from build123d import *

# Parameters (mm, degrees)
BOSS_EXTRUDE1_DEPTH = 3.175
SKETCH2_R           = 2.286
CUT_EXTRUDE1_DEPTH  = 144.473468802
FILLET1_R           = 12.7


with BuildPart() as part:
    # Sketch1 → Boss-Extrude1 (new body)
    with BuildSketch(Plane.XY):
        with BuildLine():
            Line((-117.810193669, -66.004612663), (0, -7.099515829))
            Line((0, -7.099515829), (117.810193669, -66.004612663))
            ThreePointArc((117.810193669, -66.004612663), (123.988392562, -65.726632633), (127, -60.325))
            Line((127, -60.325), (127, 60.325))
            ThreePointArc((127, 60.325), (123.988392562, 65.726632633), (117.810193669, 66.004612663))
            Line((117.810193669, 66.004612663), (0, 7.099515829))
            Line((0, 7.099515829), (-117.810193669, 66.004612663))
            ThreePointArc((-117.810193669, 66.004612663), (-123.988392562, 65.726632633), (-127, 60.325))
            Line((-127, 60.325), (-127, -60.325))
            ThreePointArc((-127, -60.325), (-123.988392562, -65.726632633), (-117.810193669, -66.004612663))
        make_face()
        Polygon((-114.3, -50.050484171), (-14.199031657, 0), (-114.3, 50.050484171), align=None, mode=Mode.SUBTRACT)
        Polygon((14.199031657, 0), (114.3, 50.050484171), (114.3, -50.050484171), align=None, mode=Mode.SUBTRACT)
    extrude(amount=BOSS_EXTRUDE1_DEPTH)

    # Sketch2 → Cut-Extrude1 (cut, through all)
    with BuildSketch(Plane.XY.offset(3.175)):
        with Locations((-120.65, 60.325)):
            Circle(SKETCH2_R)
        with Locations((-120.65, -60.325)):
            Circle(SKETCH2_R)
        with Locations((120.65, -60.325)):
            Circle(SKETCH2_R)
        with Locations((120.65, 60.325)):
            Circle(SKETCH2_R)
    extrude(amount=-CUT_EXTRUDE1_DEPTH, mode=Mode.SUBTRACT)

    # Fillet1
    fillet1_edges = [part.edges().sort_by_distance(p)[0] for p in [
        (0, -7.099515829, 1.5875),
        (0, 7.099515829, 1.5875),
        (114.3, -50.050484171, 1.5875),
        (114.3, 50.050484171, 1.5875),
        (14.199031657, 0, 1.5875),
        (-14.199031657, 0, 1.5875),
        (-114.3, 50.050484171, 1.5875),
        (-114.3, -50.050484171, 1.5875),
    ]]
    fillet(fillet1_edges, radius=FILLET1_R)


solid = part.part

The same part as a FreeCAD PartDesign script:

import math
import FreeCAD as App
import Part
import Sketcher

V = App.Vector
Q = App.Units.Quantity


def edges_at(feature, points):
    """Names of the edges that pass closest to the given points."""
    edges = feature.Shape.Edges
    near = lambda p: min(range(len(edges)), key=lambda i: edges[i].distToShape(Part.Vertex(*p))[0])
    return sorted({f"Edge{near(p) + 1}" for p in points})


def add_polygon(sketch, points):
    """Adds a closed chain of lines whose ends are joined by coincident constraints."""
    first, n = sketch.GeometryCount, len(points)
    for a, b in zip(points, points[1:] + points[:1]):
        sketch.addGeometry(Part.LineSegment(App.Vector(*a, 0), App.Vector(*b, 0)), False)
    for i in range(n):
        sketch.addConstraint(Sketcher.Constraint("Coincident", first + i, 2, first + (i + 1) % n, 1))

doc = App.newDocument("Part")
body = doc.addObject("PartDesign::Body", "Body")

# Sketch on XY plane
sketch1 = doc.addObject("Sketcher::SketchObject", "Sketch")
body.addObject(sketch1)
sketch1.AttachmentSupport = (doc.XY_Plane, [""])
sketch1.MapMode = "FlatFace"
sketch1.addGeometry(Part.LineSegment(V(-118, -66, 0), V(0, -7, 0)), False)  # 0
sketch1.addGeometry(Part.LineSegment(V(0, -7, 0), V(118, -66, 0)), False)  # 1
sketch1.addGeometry(Part.ArcOfCircle(Part.Circle(V(121, -60, 0), V(0, 0, 1), 6), math.radians(-117), math.radians(0)), False)  # 2
sketch1.addGeometry(Part.LineSegment(V(127, -60, 0), V(127, 60, 0)), False)  # 3
sketch1.addGeometry(Part.ArcOfCircle(Part.Circle(V(121, 60, 0), V(0, 0, 1), 6), math.radians(0), math.radians(117)), False)  # 4
sketch1.addGeometry(Part.LineSegment(V(118, 66, 0), V(0, 7, 0)), False)  # 5
sketch1.addGeometry(Part.LineSegment(V(0, 7, 0), V(-118, 66, 0)), False)  # 6
sketch1.addGeometry(Part.ArcOfCircle(Part.Circle(V(-121, 60, 0), V(0, 0, 1), 6), math.radians(63), math.radians(180)), False)  # 7
sketch1.addGeometry(Part.LineSegment(V(-127, 60, 0), V(-127, -60, 0)), False)  # 8
sketch1.addGeometry(Part.ArcOfCircle(Part.Circle(V(-121, -60, 0), V(0, 0, 1), 6), math.radians(180), math.radians(297)), False)  # 9
add_polygon(sketch1, [(-14, 0), (-114, -50), (-114, 50)])  # lines 10-12
add_polygon(sketch1, [(114, -50), (14, 0), (114, 50)])  # lines 13-15
sketch1.addConstraint([
    Sketcher.Constraint("Coincident", 0, 2, 1, 1),
    Sketcher.Constraint("Tangent", 1, 2, 2, 1),
    Sketcher.Constraint("Tangent", 2, 2, 3, 1),
    Sketcher.Constraint("Tangent", 3, 2, 4, 1),
    Sketcher.Constraint("Tangent", 4, 2, 5, 1),
    Sketcher.Constraint("Coincident", 5, 2, 6, 1),
    Sketcher.Constraint("Tangent", 6, 2, 7, 1),
    Sketcher.Constraint("Tangent", 7, 2, 8, 1),
    Sketcher.Constraint("Tangent", 8, 2, 9, 1),
    Sketcher.Constraint("Tangent", 9, 2, 0, 1),
    Sketcher.Constraint("Vertical", 3),
    Sketcher.Constraint("Vertical", 8),
    Sketcher.Constraint("Vertical", 11),
    Sketcher.Constraint("Vertical", 15),
    Sketcher.Constraint("Equal", 2, 4),
    Sketcher.Constraint("Equal", 4, 7),
    Sketcher.Constraint("Equal", 7, 9),
    Sketcher.Constraint("Symmetric", 2, 3, 7, 3, -1, 1),
    Sketcher.Constraint("Symmetric", 0, 2, 5, 2, -1, 1),
    Sketcher.Constraint("Symmetric", 12, 2, 13, 2, -1, 1),
    Sketcher.Constraint("Symmetric", 10, 2, 14, 2, -1, 1),
    Sketcher.Constraint("Symmetric", 4, 2, 6, 2, -2),
    Sketcher.Constraint("PointOnObject", 12, 2, -1),
    Sketcher.Constraint("Parallel", 0, 5),
    Sketcher.Constraint("Parallel", 5, 10),
    Sketcher.Constraint("Parallel", 6, 12),
    Sketcher.Constraint("Parallel", 12, 13),
    Sketcher.Constraint("Radius", 2, Q("0.25 in")),
    Sketcher.Constraint("DistanceX", -1, 1, 2, 2, Q("5 in")),
    Sketcher.Constraint("DistanceY", 3, 1, 3, 2, Q("4.75 in")),
    Sketcher.Constraint("DistanceX", 10, 2, -1, 1, Q("4.5 in")),
    Sketcher.Constraint("Distance", 0, 131.715801),
    Sketcher.Constraint("DistanceY", 11, 1, 11, 2, 100.100968),
])
pad1 = doc.addObject("PartDesign::Pad", "Pad")
body.addObject(pad1)
pad1.Profile = sketch1
pad1.Length = Q("0.125 in")

# Sketch on XY plane
sketch2 = doc.addObject("Sketcher::SketchObject", "Sketch001")
body.addObject(sketch2)
sketch2.AttachmentSupport = (doc.XY_Plane, [""])
sketch2.MapMode = "FlatFace"
sketch2.AttachmentOffset = App.Placement(V(0, 0, 0.125 * 25.4), App.Rotation())
sketch2.addGeometry([
    Part.Circle(V(-120.7, 60.3, 0), V(0, 0, 1), 2.3),
    Part.Circle(V(-120.7, -60.3, 0), V(0, 0, 1), 2.3),
    Part.Circle(V(120.7, -60.3, 0), V(0, 0, 1), 2.3),
    Part.Circle(V(120.7, 60.3, 0), V(0, 0, 1), 2.3),
], False)
sketch2.addConstraint([
    Sketcher.Constraint("Equal", 0, 1),
    Sketcher.Constraint("Equal", 1, 2),
    Sketcher.Constraint("Equal", 2, 3),
    Sketcher.Constraint("Symmetric", 0, 3, 2, 3, -1, 1),
    Sketcher.Constraint("Symmetric", 1, 3, 3, 3, -1, 1),
    Sketcher.Constraint("Symmetric", 1, 3, 2, 3, -2),
    Sketcher.Constraint("Diameter", 0, Q("0.18 in")),
    Sketcher.Constraint("DistanceX", 1, 3, 2, 3, Q("9.5 in")),
    Sketcher.Constraint("DistanceY", 1, 3, 0, 3, Q("4.75 in")),
])
pocket1 = doc.addObject("PartDesign::Pocket", "Pocket")
body.addObject(pocket1)
pocket1.Profile = sketch2
pocket1.Type = "ThroughAll"
doc.recompute()

fillet = doc.addObject("PartDesign::Fillet", "Fillet")
body.addObject(fillet)
fillet.Base = (pocket1, edges_at(pocket1, [
    (0, -7.1, 1.587),
    (0, 7.1, 1.587),
    (114.3, -50.05, 1.587),
    (114.3, 50.05, 1.587),
    (14.199, 0, 1.587),
    (-14.199, 0, 1.587),
    (-114.3, 50.05, 1.587),
    (-114.3, -50.05, 1.587),
]))
fillet.Radius = Q("0.5 in")

doc.recompute()
